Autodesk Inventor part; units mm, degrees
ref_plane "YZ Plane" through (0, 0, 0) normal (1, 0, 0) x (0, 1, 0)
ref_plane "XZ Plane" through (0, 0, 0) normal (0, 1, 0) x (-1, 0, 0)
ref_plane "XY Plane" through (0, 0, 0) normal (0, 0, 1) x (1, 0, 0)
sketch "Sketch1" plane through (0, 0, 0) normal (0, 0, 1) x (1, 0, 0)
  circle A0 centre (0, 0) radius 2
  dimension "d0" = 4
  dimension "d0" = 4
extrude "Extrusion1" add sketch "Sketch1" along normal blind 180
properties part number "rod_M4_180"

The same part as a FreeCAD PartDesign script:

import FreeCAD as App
import Part
import Sketcher
Q = App.Units.Quantity

doc = App.newDocument("Part")
body = doc.addObject("PartDesign::Body", "Body")

sketch1 = body.newObject("Sketcher::SketchObject", "Sketch")
sketch1.AttachmentSupport = (doc.getObject("XY_Plane"), [""])
sketch1.MapMode = "FlatFace"
sketch1.addGeometry(Part.Circle(App.Vector(0, 0, 0), App.Vector(0, 0, 1), 2), False)
sketch1.addConstraint(Sketcher.Constraint("Coincident", 0, 3, -1, 1))
sketch1.addConstraint(Sketcher.Constraint("Diameter", 0, Q("4 mm")))
pad1 = body.newObject("PartDesign::Pad", "Pad")
pad1.Profile = sketch1
pad1.Length = 180

doc.recompute()
